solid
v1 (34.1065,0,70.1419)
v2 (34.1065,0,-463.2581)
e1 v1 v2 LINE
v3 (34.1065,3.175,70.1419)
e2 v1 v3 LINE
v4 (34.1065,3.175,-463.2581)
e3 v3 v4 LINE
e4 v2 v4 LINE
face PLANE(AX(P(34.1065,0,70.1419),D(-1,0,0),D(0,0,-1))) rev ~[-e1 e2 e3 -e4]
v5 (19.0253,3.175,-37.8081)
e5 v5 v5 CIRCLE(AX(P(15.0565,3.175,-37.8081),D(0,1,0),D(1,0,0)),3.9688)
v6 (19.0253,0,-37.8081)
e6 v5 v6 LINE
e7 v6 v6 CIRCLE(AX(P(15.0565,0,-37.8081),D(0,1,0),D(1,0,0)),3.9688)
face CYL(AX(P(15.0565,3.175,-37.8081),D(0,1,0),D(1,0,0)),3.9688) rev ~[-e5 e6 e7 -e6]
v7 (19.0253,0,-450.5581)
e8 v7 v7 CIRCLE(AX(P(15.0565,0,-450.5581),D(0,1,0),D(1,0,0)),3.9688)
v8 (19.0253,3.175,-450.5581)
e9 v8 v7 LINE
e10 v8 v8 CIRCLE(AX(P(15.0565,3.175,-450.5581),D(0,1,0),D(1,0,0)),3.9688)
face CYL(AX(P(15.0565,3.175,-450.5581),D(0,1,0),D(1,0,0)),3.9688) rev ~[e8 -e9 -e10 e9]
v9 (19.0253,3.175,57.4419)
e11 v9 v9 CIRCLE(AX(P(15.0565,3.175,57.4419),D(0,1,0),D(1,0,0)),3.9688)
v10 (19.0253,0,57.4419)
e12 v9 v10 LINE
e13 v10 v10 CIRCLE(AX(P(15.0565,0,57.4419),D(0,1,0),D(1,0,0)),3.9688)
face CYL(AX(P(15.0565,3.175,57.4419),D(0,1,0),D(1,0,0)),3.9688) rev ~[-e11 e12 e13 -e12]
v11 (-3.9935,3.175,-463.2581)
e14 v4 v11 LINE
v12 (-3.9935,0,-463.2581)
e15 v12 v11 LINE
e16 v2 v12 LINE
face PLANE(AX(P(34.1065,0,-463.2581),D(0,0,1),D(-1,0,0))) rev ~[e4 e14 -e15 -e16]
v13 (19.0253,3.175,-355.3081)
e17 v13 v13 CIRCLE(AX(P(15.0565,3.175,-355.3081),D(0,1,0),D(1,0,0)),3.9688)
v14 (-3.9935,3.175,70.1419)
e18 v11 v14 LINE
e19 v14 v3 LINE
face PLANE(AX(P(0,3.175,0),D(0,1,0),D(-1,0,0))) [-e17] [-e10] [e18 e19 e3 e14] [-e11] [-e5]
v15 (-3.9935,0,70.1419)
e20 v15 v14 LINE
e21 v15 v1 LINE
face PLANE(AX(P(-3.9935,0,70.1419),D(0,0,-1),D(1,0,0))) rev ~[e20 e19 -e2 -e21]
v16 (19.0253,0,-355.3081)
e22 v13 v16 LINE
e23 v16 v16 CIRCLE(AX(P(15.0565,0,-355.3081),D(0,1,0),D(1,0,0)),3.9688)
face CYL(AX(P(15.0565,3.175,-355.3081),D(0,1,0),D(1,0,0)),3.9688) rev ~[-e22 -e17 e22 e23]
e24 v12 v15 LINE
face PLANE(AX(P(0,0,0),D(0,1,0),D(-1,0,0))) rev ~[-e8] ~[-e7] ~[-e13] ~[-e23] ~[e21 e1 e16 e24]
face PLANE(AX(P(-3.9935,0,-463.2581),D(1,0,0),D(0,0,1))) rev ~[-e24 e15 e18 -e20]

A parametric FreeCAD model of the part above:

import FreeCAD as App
import Part
import Sketcher

V = App.Vector
Q = App.Units.Quantity


def add_polygon(sketch, points):
    """Adds a closed chain of lines whose ends are joined by coincident constraints."""
    first, n = sketch.GeometryCount, len(points)
    for a, b in zip(points, points[1:] + points[:1]):
        sketch.addGeometry(Part.LineSegment(App.Vector(*a, 0), App.Vector(*b, 0)), False)
    for i in range(n):
        sketch.addConstraint(Sketcher.Constraint("Coincident", first + i, 2, first + (i + 1) % n, 1))

doc = App.newDocument("Part")
body = doc.addObject("PartDesign::Body", "Body")

# Sketch on XZ plane
sketch1 = doc.addObject("Sketcher::SketchObject", "Sketch")
body.addObject(sketch1)
sketch1.AttachmentSupport = (doc.XZ_Plane, [""])
sketch1.MapMode = "FlatFace"
add_polygon(sketch1, [(-4, -463), (-4, 70), (34, 70), (34, -463)])  # lines 0-3
sketch1.addConstraint(Sketcher.Constraint("Vertical", 0))
sketch1.addConstraint(Sketcher.Constraint("Horizontal", 1))
sketch1.addConstraint(Sketcher.Constraint("Vertical", 2))
sketch1.addConstraint(Sketcher.Constraint("Horizontal", 3))
sketch1.addConstraint(Sketcher.Constraint("DistanceY", 0, 1, 0, 2, Q("21 in")))
sketch1.addConstraint(Sketcher.Constraint("DistanceX", 1, 1, 1, 2, Q("1.5 in")))
sketch1.addConstraint(Sketcher.Constraint("DistanceY", -1, 1, 0, 2, Q("2.7615 in")))
sketch1.addConstraint(Sketcher.Constraint("DistanceX", 0, 2, -1, 1, Q("3.9935 mm")))
pad1 = doc.addObject("PartDesign::Pad", "Pad")
body.addObject(pad1)
pad1.Profile = sketch1
pad1.Length = Q("0.125 in")
pad1.Reversed = True

# Sketch on XZ plane
sketch2 = doc.addObject("Sketcher::SketchObject", "Sketch001")
body.addObject(sketch2)
sketch2.AttachmentSupport = (doc.XZ_Plane, [""])
sketch2.MapMode = "FlatFace"
sketch2.AttachmentOffset = App.Placement(V(0, 0, -0.125 * 25.4), App.Rotation())
sketch2.addGeometry(Part.Circle(V(15.1, 57.4, 0), V(0, 0, 1), 4), False)
sketch2.addGeometry(Part.Circle(V(15.1, -450.6, 0), V(0, 0, 1), 4), False)
sketch2.addGeometry(Part.Circle(V(15.1, -355.3, 0), V(0, 0, 1), 4), False)
sketch2.addGeometry(Part.Circle(V(15.1, -37.8, 0), V(0, 0, 1), 4), False)
sketch2.addConstraint(Sketcher.Constraint("Equal", 0, 1))
sketch2.addConstraint(Sketcher.Constraint("Equal", 1, 2))
sketch2.addConstraint(Sketcher.Constraint("Equal", 2, 3))
sketch2.addConstraint(Sketcher.Constraint("Vertical", 0, 3, 1, 3))
sketch2.addConstraint(Sketcher.Constraint("Vertical", 1, 3, 2, 3))
sketch2.addConstraint(Sketcher.Constraint("Vertical", 2, 3, 3, 3))
sketch2.addConstraint(Sketcher.Constraint("Diameter", 0, Q("0.3125 in")))
sketch2.addConstraint(Sketcher.Constraint("DistanceY", 1, 3, 0, 3, Q("20 in")))
sketch2.addConstraint(Sketcher.Constraint("DistanceY", 2, 3, 3, 3, Q("12.5 in")))
sketch2.addConstraint(Sketcher.Constraint("DistanceY", 1, 3, 2, 3, Q("3.75 in")))
sketch2.addConstraint(Sketcher.Constraint("DistanceY", -1, 1, 0, 3, Q("2.2615 in")))
sketch2.addConstraint(Sketcher.Constraint("DistanceX", -1, 1, 0, 3, Q("15.0565 mm")))
pocket1 = doc.addObject("PartDesign::Pocket", "Pocket")
body.addObject(pocket1)
pocket1.Profile = sketch2
pocket1.Length = Q("1 in")
pocket1.Reversed = True

doc.recompute()
